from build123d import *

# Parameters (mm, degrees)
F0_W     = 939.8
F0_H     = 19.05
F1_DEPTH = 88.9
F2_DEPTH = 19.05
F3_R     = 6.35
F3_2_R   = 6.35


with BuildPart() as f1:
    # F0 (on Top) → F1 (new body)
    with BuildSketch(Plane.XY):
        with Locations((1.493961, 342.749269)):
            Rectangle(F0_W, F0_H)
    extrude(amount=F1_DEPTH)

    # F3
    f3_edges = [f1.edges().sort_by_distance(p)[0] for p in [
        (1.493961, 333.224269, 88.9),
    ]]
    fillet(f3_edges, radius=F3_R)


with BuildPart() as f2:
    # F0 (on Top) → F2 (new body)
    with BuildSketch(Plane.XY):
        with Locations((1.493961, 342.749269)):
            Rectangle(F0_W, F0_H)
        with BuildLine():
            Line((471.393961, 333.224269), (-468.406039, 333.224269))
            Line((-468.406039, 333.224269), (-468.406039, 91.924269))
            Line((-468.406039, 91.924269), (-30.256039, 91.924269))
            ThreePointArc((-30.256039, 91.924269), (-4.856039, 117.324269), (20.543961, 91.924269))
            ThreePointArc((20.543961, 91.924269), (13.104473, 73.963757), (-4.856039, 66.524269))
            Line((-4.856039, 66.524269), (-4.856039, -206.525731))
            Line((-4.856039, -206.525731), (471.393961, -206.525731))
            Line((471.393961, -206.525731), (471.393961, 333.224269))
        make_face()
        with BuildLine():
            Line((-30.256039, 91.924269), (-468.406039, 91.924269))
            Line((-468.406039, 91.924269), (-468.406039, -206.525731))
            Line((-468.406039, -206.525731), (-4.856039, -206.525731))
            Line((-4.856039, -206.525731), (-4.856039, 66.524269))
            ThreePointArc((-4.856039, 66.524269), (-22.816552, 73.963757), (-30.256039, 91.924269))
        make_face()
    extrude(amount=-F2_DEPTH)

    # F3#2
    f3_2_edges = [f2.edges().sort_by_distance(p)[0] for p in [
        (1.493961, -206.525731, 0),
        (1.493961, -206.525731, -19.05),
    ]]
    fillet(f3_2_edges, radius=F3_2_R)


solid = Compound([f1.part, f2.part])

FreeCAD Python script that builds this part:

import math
import FreeCAD as App
import Part
import Sketcher
Q = App.Units.Quantity


def edges_at(feature, points):
    """Names of the edges that pass closest to the given points."""
    edges = feature.Shape.Edges
    near = lambda p: min(range(len(edges)), key=lambda i: edges[i].distToShape(Part.Vertex(*p))[0])
    return sorted({f"Edge{near(p) + 1}" for p in points})

doc = App.newDocument("Part")
params = doc.addObject("Spreadsheet::Sheet", "Params")
for row, (alias, value) in enumerate([
    ("sketch1_width", "37 in"),
    ("sketch1_height", "0.75 in"),
    ("pad1_length", "3.5 in"),
    ("fillet_radius", "0.25 in"),
    ("sketch2_radius", "1 in"),
    ("sketch2_width", "37 in"),
    ("sketch2_height", "22 in"),
    ("pad2_length", "0.75 in"),
    ("fillet2_radius", "0.25 in"),
], start=1):
    params.set(f"A{row}", alias)
    params.set(f"B{row}", "=" + value)
    params.setAlias(f"B{row}", alias)

body = doc.addObject("PartDesign::Body", "Body")

# Sketch on XY plane
sketch1 = doc.addObject("Sketcher::SketchObject", "Sketch")
body.addObject(sketch1)
sketch1.AttachmentSupport = (doc.XY_Plane, [""])
sketch1.MapMode = "FlatFace"
sketch1.addGeometry([
    Part.LineSegment(App.Vector(-468, 352, 0), App.Vector(-468, 333, 0)),
    Part.LineSegment(App.Vector(-468, 333, 0), App.Vector(471, 333, 0)),
    Part.LineSegment(App.Vector(471, 333, 0), App.Vector(471, 352, 0)),
    Part.LineSegment(App.Vector(471, 352, 0), App.Vector(-468, 352, 0)),
], False)
sketch1.addConstraint([
    Sketcher.Constraint("Coincident", 0, 2, 1, 1),
    Sketcher.Constraint("Coincident", 1, 2, 2, 1),
    Sketcher.Constraint("Coincident", 2, 2, 3, 1),
    Sketcher.Constraint("Coincident", 3, 2, 0, 1),
    Sketcher.Constraint("Vertical", 0),
    Sketcher.Constraint("Horizontal", 1),
    Sketcher.Constraint("Vertical", 2),
    Sketcher.Constraint("Horizontal", 3),
    Sketcher.Constraint("DistanceX", 1, 1, 1, 2, Q("37 in")),
    Sketcher.Constraint("DistanceY", 0, 2, 0, 1, Q("0.75 in")),
    Sketcher.Constraint("DistanceX", 0, 2, -1, 1, Q("468.406039 mm")),
    Sketcher.Constraint("DistanceY", -1, 1, 0, 2, Q("333.224269 mm")),
])
sketch1.setExpression("Constraints[8]", "Params.sketch1_width")
sketch1.setExpression("Constraints[9]", "Params.sketch1_height")
pad1 = doc.addObject("PartDesign::Pad", "Pad")
body.addObject(pad1)
pad1.Profile = sketch1
pad1.setExpression("Length", "Params.pad1_length")
doc.recompute()

fillet = doc.addObject("PartDesign::Fillet", "Fillet")
body.addObject(fillet)
fillet.Base = (pad1, edges_at(pad1, [(1.494, 333.224, 88.9)]))
fillet.setExpression("Radius", "Params.fillet_radius")
body2 = doc.addObject("PartDesign::Body", "Body001")

# Sketch on XY plane
sketch2 = doc.addObject("Sketcher::SketchObject", "Sketch001")
body2.addObject(sketch2)
sketch2.AttachmentSupport = (doc.getObject("XY_Plane001"), [""])
sketch2.MapMode = "FlatFace"
sketch2.addGeometry([
    Part.LineSegment(App.Vector(-468, 352, 0), App.Vector(-468, -207, 0)),  # 0
    Part.LineSegment(App.Vector(-468, -207, 0), App.Vector(471, -207, 0)),  # 1
    Part.LineSegment(App.Vector(471, -207, 0), App.Vector(471, 352, 0)),  # 2
    Part.LineSegment(App.Vector(471, 352, 0), App.Vector(-468, 352, 0)),  # 3
    Part.ArcOfCircle(Part.Circle(App.Vector(-5, 92, 0), App.Vector(0, 0, 1), 25), math.radians(0), math.radians(180)),  # 4
    Part.ArcOfCircle(Part.Circle(App.Vector(-5, 92, 0), App.Vector(0, 0, 1), 25), math.radians(-90), math.radians(0)),  # 5
    Part.ArcOfCircle(Part.Circle(App.Vector(-5, 92, 0), App.Vector(0, 0, 1), 25), math.radians(180), math.radians(270)),  # 6
], False)
sketch2.addConstraint([
    Sketcher.Constraint("Coincident", 0, 2, 1, 1),
    Sketcher.Constraint("Coincident", 1, 2, 2, 1),
    Sketcher.Constraint("Coincident", 2, 2, 3, 1),
    Sketcher.Constraint("Coincident", 3, 2, 0, 1),
    Sketcher.Constraint("Tangent", 4, 1, 5, 2),
    Sketcher.Constraint("Tangent", 5, 1, 6, 2),
    Sketcher.Constraint("Tangent", 6, 1, 4, 2),
    Sketcher.Constraint("Vertical", 0),
    Sketcher.Constraint("Horizontal", 1),
    Sketcher.Constraint("Vertical", 2),
    Sketcher.Constraint("Horizontal", 3),
    Sketcher.Constraint("Horizontal", 6, 3, 4, 1),
    Sketcher.Constraint("Horizontal", 4, 1, 6, 1),
    Sketcher.Constraint("Vertical", 6, 3, 5, 1),
    Sketcher.Constraint("Radius", 4, Q("1 in")),
    Sketcher.Constraint("DistanceX", 1, 1, 1, 2, Q("37 in")),
    Sketcher.Constraint("DistanceY", 0, 2, 0, 1, Q("22 in")),
    Sketcher.Constraint("DistanceX", 0, 2, 6, 3, Q("18.25 in")),
    Sketcher.Constraint("DistanceY", 0, 2, 6, 3, Q("11.75 in")),
    Sketcher.Constraint("DistanceX", 4, 3, -1, 1, Q("4.856039 mm")),
    Sketcher.Constraint("DistanceY", -1, 1, 4, 3, Q("91.924269 mm")),
])
sketch2.setExpression("Constraints[14]", "Params.sketch2_radius")
sketch2.setExpression("Constraints[15]", "Params.sketch2_width")
sketch2.setExpression("Constraints[16]", "Params.sketch2_height")
pad2 = doc.addObject("PartDesign::Pad", "Pad001")
body2.addObject(pad2)
pad2.Profile = sketch2
pad2.setExpression("Length", "Params.pad2_length")
pad2.Reversed = True
doc.recompute()

fillet2 = doc.addObject("PartDesign::Fillet", "Fillet001")
body2.addObject(fillet2)
fillet2.Base = (pad2, edges_at(pad2, [(1.494, -206.526, 0), (1.494, -206.526, -19.05)]))
fillet2.setExpression("Radius", "Params.fillet2_radius")

doc.recompute()
